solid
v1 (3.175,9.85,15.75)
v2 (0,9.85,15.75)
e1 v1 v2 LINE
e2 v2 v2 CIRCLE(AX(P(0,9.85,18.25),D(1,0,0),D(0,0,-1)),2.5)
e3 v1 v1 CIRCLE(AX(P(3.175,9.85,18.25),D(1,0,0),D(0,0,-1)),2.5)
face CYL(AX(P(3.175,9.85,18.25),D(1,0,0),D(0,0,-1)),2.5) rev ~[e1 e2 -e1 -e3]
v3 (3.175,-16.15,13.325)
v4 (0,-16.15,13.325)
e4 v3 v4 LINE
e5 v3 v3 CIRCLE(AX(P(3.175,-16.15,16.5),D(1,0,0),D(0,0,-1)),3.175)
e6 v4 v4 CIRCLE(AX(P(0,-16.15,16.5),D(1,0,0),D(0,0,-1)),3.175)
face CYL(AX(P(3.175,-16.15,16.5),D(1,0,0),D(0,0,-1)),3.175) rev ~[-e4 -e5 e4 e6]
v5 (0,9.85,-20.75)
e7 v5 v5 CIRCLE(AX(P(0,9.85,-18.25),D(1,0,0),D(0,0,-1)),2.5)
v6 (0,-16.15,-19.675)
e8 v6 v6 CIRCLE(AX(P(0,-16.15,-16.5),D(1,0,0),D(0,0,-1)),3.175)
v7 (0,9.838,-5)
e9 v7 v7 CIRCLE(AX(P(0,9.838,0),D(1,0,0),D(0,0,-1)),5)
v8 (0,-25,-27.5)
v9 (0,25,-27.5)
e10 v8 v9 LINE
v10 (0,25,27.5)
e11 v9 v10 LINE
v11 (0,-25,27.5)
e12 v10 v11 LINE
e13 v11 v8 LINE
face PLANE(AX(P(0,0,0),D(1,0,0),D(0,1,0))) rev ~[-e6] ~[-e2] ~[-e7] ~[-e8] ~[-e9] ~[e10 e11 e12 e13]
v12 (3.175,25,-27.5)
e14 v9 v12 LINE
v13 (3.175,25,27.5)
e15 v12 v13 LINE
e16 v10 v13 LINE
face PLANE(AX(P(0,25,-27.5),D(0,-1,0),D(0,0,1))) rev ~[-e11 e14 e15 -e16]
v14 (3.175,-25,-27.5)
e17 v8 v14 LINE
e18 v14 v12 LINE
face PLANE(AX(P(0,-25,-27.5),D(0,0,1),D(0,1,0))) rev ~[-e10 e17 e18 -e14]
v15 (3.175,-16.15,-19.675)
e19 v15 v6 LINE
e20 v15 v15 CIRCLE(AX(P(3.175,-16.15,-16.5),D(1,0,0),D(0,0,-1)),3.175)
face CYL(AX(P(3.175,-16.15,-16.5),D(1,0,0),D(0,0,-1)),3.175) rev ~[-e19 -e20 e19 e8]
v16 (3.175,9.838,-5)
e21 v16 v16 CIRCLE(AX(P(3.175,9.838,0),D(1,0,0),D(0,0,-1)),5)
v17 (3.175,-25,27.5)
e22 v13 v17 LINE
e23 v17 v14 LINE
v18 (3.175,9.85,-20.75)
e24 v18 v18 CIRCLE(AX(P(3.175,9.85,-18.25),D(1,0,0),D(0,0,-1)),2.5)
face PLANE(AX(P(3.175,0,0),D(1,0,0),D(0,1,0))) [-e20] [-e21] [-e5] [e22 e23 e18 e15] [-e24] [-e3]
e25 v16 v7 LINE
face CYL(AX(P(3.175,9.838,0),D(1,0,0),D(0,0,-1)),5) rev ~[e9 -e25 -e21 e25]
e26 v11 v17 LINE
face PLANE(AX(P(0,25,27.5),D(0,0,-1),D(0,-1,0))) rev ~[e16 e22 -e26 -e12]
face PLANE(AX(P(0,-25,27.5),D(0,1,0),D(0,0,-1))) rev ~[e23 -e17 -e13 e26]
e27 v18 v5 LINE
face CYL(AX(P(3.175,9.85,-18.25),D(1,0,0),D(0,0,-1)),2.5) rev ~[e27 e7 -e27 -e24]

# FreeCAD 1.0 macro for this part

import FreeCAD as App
import Part
import Sketcher

V = App.Vector
Q = App.Units.Quantity


def add_polygon(sketch, points):
    """Adds a closed chain of lines whose ends are joined by coincident constraints."""
    first, n = sketch.GeometryCount, len(points)
    for a, b in zip(points, points[1:] + points[:1]):
        sketch.addGeometry(Part.LineSegment(App.Vector(*a, 0), App.Vector(*b, 0)), False)
    for i in range(n):
        sketch.addConstraint(Sketcher.Constraint("Coincident", first + i, 2, first + (i + 1) % n, 1))

doc = App.newDocument("Part")
body = doc.addObject("PartDesign::Body", "Body")

# Sketch on YZ plane
sketch1 = body.newObject("Sketcher::SketchObject", "Sketch")
sketch1.AttachmentSupport = (doc.getObject("YZ_Plane"), [""])
sketch1.MapMode = "FlatFace"
add_polygon(sketch1, [(25, -27.5), (25, 27.5), (-25, 27.5), (-25, -27.5)])  # lines 0-3
sketch1.addConstraint([
    Sketcher.Constraint("Vertical", 0),
    Sketcher.Constraint("Horizontal", 1),
    Sketcher.Constraint("Vertical", 2),
    Sketcher.Constraint("Horizontal", 3),
    Sketcher.Constraint("Symmetric", 0, 2, 2, 2, -1, 1),
    Sketcher.Constraint("DistanceX", 1, 2, 1, 1, Q("50 mm")),
    Sketcher.Constraint("DistanceY", 0, 1, 0, 2, Q("55 mm")),
])
pad1 = body.newObject("PartDesign::Pad", "Pad")
pad1.Profile = sketch1
pad1.Length = 3.175

# Sketch on YZ plane
sketch2 = body.newObject("Sketcher::SketchObject", "Sketch001")
sketch2.AttachmentSupport = (doc.getObject("YZ_Plane"), [""])
sketch2.MapMode = "FlatFace"
sketch2.AttachmentOffset = App.Placement(V(0, 0, 3.175), App.Rotation())
sketch2.addGeometry([
    Part.Circle(V(9.85, 18.25, 0), V(0, 0, 1), 2.5),
    Part.Circle(V(9.85, -18.25, 0), V(0, 0, 1), 2.5),
    Part.Circle(V(-16.15, 16.5, 0), V(0, 0, 1), 3.175),
    Part.Circle(V(-16.15, -16.5, 0), V(0, 0, 1), 3.175),
], False)
sketch2.addConstraint([
    Sketcher.Constraint("Equal", 0, 1),
    Sketcher.Constraint("Equal", 2, 3),
    Sketcher.Constraint("Symmetric", 0, 3, 1, 3, -1),
    Sketcher.Constraint("Symmetric", 2, 3, 3, 3, -1),
    Sketcher.Constraint("Diameter", 0, Q("5 mm")),
    Sketcher.Constraint("Diameter", 2, Q("6.35 mm")),
    Sketcher.Constraint("DistanceY", 1, 3, 0, 3, Q("36.5 mm")),
    Sketcher.Constraint("DistanceX", 2, 3, 0, 3, Q("26 mm")),
    Sketcher.Constraint("DistanceY", 3, 3, 2, 3, Q("33 mm")),
    Sketcher.Constraint("DistanceX", -1, 1, 0, 3, Q("9.85 mm")),
])
pocket1 = body.newObject("PartDesign::Pocket", "Pocket")
pocket1.Profile = sketch2
pocket1.Type = "ThroughAll"

# Sketch on YZ plane
sketch3 = body.newObject("Sketcher::SketchObject", "Sketch002")
sketch3.AttachmentSupport = (doc.getObject("YZ_Plane"), [""])
sketch3.MapMode = "FlatFace"
sketch3.AttachmentOffset = App.Placement(V(0, 0, 3.175), App.Rotation())
sketch3.addGeometry(Part.Circle(V(9.838, 0, 0), V(0, 0, 1), 5), False)
sketch3.addConstraint([
    Sketcher.Constraint("PointOnObject", 0, 3, -1),
    Sketcher.Constraint("Diameter", 0, Q("10 mm")),
    Sketcher.Constraint("DistanceX", -1, 1, 0, 3, Q("9.838 mm")),
])
pocket2 = body.newObject("PartDesign::Pocket", "Pocket001")
pocket2.Profile = sketch3
pocket2.Type = "ThroughAll"

doc.recompute()
